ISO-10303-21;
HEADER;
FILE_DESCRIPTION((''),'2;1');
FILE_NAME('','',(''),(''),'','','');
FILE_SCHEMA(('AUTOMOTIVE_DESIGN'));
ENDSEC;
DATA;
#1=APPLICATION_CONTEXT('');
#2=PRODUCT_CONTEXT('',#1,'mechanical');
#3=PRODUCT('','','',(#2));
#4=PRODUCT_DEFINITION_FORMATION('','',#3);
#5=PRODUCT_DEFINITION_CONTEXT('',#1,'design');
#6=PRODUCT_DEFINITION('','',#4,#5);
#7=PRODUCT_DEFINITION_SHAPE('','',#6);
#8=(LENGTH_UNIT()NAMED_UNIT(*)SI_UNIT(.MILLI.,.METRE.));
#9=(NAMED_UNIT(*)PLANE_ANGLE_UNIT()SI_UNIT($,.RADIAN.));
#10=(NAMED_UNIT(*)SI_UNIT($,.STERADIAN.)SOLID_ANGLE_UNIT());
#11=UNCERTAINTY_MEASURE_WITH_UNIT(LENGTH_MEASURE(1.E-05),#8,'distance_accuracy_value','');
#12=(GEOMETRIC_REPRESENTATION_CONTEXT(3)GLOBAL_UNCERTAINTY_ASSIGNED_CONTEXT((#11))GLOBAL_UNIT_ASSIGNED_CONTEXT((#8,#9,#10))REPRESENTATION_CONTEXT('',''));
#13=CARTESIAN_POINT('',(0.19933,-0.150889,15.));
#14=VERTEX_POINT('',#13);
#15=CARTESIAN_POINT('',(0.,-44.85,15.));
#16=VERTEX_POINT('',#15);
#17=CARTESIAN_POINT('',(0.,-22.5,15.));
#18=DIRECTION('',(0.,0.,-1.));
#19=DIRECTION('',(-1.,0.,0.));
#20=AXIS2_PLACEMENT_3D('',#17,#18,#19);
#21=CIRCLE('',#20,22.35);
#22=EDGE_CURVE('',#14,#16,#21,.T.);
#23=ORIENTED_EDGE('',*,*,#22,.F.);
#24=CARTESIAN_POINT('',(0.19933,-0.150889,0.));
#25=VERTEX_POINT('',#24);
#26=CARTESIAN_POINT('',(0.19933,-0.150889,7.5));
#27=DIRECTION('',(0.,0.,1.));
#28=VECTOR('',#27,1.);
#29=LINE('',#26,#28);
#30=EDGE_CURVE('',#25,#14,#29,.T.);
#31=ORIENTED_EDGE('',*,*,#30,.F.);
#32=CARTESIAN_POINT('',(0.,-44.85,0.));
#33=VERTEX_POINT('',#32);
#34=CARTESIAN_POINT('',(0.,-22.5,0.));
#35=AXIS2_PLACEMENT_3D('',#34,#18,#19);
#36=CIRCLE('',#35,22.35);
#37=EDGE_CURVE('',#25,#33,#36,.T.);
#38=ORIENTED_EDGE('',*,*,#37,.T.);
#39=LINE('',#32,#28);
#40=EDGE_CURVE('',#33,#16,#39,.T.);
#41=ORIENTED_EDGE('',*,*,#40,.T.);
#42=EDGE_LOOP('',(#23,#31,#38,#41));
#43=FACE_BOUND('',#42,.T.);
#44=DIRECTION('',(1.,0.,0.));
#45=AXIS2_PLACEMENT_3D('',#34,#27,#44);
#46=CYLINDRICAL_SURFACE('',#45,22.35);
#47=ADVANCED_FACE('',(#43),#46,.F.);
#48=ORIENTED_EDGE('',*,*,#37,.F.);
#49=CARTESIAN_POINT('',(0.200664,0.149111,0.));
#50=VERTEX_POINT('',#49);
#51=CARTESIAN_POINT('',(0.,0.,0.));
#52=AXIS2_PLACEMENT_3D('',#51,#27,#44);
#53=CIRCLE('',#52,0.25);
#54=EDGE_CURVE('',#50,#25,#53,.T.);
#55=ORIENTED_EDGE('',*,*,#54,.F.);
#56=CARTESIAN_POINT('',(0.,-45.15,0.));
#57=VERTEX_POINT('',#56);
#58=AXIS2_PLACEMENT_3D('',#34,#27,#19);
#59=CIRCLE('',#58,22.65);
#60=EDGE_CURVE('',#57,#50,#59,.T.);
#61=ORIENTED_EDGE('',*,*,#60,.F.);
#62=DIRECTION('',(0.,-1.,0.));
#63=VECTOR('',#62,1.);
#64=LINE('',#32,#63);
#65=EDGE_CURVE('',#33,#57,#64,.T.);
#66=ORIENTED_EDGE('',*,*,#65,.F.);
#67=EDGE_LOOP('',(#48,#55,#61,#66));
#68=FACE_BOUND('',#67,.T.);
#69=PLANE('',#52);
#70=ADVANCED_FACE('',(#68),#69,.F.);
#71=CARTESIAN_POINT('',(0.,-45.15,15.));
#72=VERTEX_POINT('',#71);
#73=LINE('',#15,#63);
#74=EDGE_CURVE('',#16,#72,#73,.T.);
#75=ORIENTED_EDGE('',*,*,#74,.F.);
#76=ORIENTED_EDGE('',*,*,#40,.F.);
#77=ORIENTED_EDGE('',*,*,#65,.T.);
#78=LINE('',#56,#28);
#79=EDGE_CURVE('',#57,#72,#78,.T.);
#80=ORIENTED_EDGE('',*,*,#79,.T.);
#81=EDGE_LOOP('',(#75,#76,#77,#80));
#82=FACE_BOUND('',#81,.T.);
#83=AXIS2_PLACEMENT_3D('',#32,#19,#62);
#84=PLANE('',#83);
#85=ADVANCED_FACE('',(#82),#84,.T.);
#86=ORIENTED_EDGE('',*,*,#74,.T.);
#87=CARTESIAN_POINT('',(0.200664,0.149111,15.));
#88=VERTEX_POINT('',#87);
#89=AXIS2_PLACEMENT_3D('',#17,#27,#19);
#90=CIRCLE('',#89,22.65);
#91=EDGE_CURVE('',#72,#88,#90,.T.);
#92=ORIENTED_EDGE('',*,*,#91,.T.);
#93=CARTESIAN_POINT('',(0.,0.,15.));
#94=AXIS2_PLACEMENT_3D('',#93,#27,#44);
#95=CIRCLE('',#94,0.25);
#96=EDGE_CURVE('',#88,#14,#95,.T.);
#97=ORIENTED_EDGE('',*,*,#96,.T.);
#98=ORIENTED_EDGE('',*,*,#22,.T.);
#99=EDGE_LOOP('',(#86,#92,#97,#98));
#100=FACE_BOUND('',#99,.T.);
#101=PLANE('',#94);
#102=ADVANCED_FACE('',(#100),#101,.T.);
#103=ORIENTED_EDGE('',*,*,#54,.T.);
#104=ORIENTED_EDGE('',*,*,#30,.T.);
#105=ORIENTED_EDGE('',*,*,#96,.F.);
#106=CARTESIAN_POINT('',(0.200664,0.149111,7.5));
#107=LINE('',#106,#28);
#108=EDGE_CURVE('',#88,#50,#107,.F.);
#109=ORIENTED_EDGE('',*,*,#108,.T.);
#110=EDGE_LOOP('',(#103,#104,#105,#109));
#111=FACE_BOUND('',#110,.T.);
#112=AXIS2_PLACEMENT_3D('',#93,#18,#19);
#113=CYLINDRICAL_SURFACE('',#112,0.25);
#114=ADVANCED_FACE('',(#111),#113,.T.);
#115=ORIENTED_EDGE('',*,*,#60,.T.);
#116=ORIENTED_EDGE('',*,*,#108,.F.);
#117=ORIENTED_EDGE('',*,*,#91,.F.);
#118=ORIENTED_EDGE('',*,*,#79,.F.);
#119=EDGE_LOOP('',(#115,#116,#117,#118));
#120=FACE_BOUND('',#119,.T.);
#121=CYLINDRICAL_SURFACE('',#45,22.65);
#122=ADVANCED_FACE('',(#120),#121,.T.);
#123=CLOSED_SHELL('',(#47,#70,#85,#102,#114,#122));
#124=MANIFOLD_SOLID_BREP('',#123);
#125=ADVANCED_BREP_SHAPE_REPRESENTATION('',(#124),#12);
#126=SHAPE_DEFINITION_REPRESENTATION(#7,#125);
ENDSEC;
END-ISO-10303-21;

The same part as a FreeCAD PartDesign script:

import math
import FreeCAD as App
import Part
import Sketcher
Q = App.Units.Quantity

doc = App.newDocument("Part")
body = doc.addObject("PartDesign::Body", "Body")

sketch1 = body.newObject("Sketcher::SketchObject", "Sketch")
sketch1.AttachmentSupport = (doc.getObject("XY_Plane"), [""])
sketch1.MapMode = "FlatFace"
sketch1.addGeometry(Part.Circle(App.Vector(0, 0, 0), App.Vector(0, 0, 1), 0.25), False)
sketch1.addConstraint([
    Sketcher.Constraint("Coincident", 0, 3, -1, 1),
    Sketcher.Constraint("Diameter", 0, Q("0.5 mm")),
])
pad1 = body.newObject("PartDesign::Pad", "Pad")
pad1.Profile = sketch1
pad1.Length = 15

sketch2 = body.newObject("Sketcher::SketchObject", "Sketch001")
sketch2.AttachmentSupport = (doc.getObject("XY_Plane"), [""])
sketch2.MapMode = "FlatFace"
sketch2.AttachmentOffset = App.Placement(App.Vector(0, 0, 15), App.Rotation())
sketch2.addGeometry([
    Part.LineSegment(App.Vector(0, -44.85, 0), App.Vector(0, -45.15, 0)),
    Part.ArcOfCircle(Part.Circle(App.Vector(0, -22.5, 0), App.Vector(0, 0, 1), 22.65), math.radians(-90), math.radians(90)),
    Part.LineSegment(App.Vector(0, 0.15, 0), App.Vector(0, -0.15, 0)),
    Part.ArcOfCircle(Part.Circle(App.Vector(0, -22.5, 0), App.Vector(0, 0, 1), 22.35), math.radians(-90), math.radians(90)),
], False)
sketch2.addConstraint([
    Sketcher.Constraint("Coincident", 0, 2, 1, 1),
    Sketcher.Constraint("Coincident", 1, 2, 2, 1),
    Sketcher.Constraint("Coincident", 2, 2, 3, 2),
    Sketcher.Constraint("Coincident", 3, 1, 0, 1),
    Sketcher.Constraint("Vertical", 0),
    Sketcher.Constraint("Vertical", 2),
    Sketcher.Constraint("Coincident", 3, 3, 1, 3),
    Sketcher.Constraint("Symmetric", 1, 2, 2, 2, -1, 1),
    Sketcher.Constraint("PointOnObject", 1, 3, -2),
    Sketcher.Constraint("PointOnObject", 0, 2, -2),
    Sketcher.Constraint("Radius", 1, Q("22.65 mm")),
    Sketcher.Constraint("Radius", 3, Q("22.35 mm")),
])
pad2 = body.newObject("PartDesign::Pad", "Pad001")
pad2.Profile = sketch2
pad2.Length = 15
pad2.Reversed = True

doc.recompute()
